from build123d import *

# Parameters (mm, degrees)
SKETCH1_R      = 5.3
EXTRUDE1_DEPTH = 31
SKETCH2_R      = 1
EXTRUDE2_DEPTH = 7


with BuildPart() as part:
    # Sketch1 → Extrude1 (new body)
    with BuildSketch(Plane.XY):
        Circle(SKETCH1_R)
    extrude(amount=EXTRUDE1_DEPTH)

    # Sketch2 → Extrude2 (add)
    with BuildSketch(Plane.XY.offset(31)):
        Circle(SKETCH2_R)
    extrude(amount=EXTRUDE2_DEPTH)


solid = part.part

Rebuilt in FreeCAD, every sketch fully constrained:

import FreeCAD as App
import Part
import Sketcher

doc = App.newDocument("Part")
params = doc.addObject("Spreadsheet::Sheet", "Params")
for row, (alias, value) in enumerate([
    ("sketch1_diameter", "10.6 mm"),
    ("pad1_length", "31 mm"),
    ("sketch2_diameter", "2 mm"),
    ("pad2_length", "7 mm"),
], start=1):
    params.set(f"A{row}", alias)
    params.set(f"B{row}", "=" + value)
    params.setAlias(f"B{row}", alias)

body = doc.addObject("PartDesign::Body", "Body")

sketch1 = body.newObject("Sketcher::SketchObject", "Sketch")
sketch1.AttachmentSupport = (doc.getObject("XY_Plane"), [""])
sketch1.MapMode = "FlatFace"
sketch1.addGeometry(Part.Circle(App.Vector(0, 0, 0), App.Vector(0, 0, 1), 5.3), False)
sketch1.addConstraint([
    Sketcher.Constraint("Coincident", 0, 3, -1, 1),
    Sketcher.Constraint("Diameter", 0, 10.6),
])
sketch1.setExpression("Constraints[1]", "Params.sketch1_diameter")
pad1 = body.newObject("PartDesign::Pad", "Pad")
pad1.Profile = sketch1
pad1.setExpression("Length", "Params.pad1_length")

sketch2 = body.newObject("Sketcher::SketchObject", "Sketch001")
sketch2.AttachmentSupport = (doc.getObject("XY_Plane"), [""])
sketch2.MapMode = "FlatFace"
sketch2.AttachmentOffset = App.Placement(App.Vector(0, 0, 31), App.Rotation())
sketch2.addGeometry(Part.Circle(App.Vector(0, 0, 0), App.Vector(0, 0, 1), 1), False)
sketch2.addConstraint([
    Sketcher.Constraint("Coincident", 0, 3, -1, 1),
    Sketcher.Constraint("Diameter", 0, 2.0),
])
sketch2.setExpression("Constraints[1]", "Params.sketch2_diameter")
pad2 = body.newObject("PartDesign::Pad", "Pad001")
pad2.Profile = sketch2
pad2.setExpression("Length", "Params.pad2_length")

doc.recompute()
